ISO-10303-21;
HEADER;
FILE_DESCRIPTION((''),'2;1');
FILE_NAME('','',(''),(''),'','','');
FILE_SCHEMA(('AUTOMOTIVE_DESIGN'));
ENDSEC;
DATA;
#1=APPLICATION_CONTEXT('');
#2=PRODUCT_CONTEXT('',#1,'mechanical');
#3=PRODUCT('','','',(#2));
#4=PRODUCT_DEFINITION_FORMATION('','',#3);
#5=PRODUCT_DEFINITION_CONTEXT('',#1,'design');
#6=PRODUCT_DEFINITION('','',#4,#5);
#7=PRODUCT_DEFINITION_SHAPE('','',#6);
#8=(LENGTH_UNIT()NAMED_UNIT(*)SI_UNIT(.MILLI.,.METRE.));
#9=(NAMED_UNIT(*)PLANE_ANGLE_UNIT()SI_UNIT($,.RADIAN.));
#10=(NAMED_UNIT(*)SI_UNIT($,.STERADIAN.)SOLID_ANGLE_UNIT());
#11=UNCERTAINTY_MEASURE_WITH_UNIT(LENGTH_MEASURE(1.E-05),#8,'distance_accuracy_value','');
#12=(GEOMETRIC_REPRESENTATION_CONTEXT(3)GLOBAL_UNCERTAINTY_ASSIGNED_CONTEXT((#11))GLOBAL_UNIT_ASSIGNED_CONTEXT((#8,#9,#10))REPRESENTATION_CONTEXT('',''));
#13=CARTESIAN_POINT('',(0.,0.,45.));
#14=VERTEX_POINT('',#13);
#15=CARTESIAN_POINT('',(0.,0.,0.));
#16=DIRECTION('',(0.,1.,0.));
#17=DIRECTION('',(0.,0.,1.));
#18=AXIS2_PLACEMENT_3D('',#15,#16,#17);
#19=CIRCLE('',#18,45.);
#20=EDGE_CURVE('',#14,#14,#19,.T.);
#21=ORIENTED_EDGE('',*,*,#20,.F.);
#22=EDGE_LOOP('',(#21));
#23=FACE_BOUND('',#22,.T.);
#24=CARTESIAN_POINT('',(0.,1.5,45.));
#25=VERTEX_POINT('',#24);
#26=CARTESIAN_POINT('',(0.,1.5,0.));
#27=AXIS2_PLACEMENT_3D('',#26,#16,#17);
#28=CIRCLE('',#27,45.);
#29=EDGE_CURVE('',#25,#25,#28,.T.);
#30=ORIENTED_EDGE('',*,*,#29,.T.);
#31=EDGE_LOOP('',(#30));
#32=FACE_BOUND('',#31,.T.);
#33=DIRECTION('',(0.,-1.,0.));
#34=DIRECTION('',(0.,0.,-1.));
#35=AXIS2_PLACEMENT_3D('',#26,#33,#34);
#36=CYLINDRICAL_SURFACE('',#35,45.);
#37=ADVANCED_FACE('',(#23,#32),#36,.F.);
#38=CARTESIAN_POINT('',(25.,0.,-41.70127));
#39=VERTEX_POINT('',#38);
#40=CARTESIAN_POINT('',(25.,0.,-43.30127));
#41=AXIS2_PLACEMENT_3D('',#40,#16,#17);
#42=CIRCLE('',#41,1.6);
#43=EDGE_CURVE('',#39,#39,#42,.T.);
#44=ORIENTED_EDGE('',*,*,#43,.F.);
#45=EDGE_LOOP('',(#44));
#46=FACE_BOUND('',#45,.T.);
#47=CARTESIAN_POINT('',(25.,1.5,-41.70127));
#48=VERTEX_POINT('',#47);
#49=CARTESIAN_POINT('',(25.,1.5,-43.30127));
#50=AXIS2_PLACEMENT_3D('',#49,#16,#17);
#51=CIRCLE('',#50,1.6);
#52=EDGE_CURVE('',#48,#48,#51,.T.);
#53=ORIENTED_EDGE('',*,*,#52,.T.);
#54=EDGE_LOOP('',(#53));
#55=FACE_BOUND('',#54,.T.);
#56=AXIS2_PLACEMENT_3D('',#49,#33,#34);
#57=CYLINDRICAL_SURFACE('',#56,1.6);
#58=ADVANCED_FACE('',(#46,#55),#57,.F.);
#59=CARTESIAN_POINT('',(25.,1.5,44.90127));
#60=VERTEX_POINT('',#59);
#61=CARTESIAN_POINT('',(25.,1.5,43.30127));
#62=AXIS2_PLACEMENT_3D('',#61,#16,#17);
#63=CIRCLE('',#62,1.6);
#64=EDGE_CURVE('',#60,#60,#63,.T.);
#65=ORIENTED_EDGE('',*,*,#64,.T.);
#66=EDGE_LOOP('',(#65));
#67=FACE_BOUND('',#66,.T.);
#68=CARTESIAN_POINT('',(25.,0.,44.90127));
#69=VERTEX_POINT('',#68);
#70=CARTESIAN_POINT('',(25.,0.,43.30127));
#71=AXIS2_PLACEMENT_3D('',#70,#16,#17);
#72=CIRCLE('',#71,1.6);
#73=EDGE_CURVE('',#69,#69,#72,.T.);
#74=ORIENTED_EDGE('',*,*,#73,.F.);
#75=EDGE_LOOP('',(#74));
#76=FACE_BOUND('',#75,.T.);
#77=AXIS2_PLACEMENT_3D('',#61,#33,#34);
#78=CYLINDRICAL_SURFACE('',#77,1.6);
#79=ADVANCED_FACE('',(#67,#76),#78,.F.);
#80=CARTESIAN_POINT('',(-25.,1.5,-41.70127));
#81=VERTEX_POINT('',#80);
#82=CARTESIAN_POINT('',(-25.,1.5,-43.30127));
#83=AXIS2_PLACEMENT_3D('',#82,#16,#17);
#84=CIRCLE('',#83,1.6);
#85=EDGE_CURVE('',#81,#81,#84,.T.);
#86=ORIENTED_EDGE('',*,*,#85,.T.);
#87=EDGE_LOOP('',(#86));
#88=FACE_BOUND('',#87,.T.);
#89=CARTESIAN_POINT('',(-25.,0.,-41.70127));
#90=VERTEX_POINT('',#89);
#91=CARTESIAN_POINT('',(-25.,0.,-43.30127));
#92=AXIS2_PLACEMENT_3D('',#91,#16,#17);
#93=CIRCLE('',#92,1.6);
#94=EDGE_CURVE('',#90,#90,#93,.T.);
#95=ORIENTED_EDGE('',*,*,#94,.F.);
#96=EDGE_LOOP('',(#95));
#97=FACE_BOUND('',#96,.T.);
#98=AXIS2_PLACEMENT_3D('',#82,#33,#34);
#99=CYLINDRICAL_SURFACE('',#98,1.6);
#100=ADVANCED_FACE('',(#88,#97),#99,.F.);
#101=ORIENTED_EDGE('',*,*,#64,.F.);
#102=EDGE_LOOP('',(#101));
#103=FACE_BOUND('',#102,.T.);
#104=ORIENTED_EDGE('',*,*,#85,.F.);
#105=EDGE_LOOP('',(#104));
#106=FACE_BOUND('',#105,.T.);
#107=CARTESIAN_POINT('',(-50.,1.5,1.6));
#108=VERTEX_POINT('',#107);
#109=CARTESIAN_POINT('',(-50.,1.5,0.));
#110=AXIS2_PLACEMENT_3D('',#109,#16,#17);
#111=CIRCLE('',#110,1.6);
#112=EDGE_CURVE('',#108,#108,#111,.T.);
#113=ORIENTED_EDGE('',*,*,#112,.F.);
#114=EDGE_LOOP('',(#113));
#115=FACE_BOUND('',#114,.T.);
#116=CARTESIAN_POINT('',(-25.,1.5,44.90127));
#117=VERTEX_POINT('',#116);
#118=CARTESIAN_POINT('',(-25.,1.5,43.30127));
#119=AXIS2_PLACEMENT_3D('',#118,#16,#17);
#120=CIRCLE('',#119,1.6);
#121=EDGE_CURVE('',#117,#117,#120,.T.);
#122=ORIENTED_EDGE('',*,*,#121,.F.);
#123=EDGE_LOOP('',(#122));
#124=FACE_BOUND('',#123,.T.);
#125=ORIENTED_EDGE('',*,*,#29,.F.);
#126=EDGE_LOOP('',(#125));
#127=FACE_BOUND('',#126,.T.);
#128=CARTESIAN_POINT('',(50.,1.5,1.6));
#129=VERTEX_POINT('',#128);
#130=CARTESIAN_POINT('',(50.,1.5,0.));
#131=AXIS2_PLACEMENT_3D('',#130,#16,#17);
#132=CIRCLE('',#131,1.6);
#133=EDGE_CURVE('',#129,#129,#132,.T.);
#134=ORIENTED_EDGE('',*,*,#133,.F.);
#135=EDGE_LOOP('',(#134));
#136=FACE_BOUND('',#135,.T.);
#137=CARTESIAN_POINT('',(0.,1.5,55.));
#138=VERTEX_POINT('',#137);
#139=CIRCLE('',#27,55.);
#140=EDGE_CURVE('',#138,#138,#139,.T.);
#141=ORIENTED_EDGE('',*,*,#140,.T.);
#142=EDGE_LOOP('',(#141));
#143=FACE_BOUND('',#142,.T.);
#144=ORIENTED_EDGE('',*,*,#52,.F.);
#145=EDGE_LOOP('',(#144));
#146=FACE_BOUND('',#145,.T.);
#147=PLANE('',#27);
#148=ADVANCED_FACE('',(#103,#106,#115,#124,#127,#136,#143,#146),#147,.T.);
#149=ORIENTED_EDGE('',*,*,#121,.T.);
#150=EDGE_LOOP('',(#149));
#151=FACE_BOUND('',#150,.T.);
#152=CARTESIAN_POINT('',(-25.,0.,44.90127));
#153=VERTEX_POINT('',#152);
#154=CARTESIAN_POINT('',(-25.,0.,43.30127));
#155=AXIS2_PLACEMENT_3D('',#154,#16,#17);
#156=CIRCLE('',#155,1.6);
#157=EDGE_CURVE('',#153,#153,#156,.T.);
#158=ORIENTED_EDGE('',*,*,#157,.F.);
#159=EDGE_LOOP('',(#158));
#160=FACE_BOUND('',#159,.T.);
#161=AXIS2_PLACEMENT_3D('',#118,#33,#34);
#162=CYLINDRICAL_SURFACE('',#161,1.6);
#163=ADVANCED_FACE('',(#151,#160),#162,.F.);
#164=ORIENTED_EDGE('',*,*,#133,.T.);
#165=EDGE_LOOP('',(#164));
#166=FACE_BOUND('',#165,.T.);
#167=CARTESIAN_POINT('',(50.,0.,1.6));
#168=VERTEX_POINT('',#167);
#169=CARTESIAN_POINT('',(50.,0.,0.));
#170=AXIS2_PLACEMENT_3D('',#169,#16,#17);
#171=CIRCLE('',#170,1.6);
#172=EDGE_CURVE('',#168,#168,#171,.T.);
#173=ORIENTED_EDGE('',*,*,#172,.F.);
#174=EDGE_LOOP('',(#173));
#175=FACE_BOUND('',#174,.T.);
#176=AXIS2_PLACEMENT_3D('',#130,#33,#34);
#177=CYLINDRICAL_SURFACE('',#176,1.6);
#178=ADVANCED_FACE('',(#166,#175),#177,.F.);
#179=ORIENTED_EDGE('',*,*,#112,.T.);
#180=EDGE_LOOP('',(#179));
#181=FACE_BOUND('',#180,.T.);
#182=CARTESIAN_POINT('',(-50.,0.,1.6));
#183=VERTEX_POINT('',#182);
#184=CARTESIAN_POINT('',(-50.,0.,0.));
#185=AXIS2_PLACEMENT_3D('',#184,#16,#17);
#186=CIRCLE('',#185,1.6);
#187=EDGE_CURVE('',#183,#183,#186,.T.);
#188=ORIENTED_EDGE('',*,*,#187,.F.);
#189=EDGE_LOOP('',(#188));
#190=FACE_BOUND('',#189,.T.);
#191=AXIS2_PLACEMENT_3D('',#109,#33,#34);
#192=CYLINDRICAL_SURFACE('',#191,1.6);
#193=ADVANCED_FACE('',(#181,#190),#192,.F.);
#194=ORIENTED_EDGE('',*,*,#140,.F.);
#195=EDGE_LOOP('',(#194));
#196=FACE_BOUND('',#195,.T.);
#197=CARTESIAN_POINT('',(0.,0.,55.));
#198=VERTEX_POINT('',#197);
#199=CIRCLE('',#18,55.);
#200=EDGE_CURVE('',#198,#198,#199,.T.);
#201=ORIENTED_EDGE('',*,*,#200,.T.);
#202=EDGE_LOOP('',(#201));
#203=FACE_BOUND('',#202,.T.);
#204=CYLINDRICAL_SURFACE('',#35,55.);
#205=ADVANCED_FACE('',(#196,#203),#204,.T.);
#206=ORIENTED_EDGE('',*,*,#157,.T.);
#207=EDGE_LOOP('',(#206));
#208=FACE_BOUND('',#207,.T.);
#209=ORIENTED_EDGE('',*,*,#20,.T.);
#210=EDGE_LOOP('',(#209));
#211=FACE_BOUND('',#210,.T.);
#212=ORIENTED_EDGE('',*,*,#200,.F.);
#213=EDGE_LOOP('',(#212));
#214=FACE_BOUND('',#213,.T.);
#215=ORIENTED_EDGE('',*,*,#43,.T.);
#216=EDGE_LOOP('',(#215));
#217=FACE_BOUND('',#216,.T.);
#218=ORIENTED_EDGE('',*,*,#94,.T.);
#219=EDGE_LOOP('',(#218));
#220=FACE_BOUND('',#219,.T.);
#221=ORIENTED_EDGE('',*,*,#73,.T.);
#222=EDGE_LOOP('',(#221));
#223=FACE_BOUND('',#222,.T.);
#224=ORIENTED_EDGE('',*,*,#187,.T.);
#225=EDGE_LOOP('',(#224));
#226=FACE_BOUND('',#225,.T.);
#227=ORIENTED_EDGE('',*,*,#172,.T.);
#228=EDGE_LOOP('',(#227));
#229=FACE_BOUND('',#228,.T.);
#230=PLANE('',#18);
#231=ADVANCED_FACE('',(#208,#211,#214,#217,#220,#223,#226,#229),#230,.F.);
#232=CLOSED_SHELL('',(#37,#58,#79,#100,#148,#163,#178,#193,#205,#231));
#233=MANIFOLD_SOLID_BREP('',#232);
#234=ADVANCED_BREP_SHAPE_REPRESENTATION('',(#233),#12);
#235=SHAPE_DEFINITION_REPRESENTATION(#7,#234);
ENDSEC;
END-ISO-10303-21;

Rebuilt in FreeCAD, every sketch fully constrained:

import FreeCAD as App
import Part
import Sketcher

V = App.Vector
Q = App.Units.Quantity

doc = App.newDocument("Part")
body = doc.addObject("PartDesign::Body", "Body")

sketch1 = body.newObject("Sketcher::SketchObject", "Sketch")
sketch1.AttachmentSupport = (doc.getObject("XZ_Plane"), [""])
sketch1.MapMode = "FlatFace"
sketch1.addGeometry(Part.Circle(V(0, 0, 0), V(0, 0, 1), 55), False)
sketch1.addGeometry(Part.Circle(V(-25, -43.3, 0), V(0, 0, 1), 1.6), False)
sketch1.addGeometry(Part.Circle(V(-50, 0, 0), V(0, 0, 1), 1.6), False)
sketch1.addGeometry(Part.Circle(V(-25, 43.3, 0), V(0, 0, 1), 1.6), False)
sketch1.addGeometry(Part.Circle(V(25, -43.3, 0), V(0, 0, 1), 1.6), False)
sketch1.addGeometry(Part.Circle(V(50, 0, 0), V(0, 0, 1), 1.6), False)
sketch1.addGeometry(Part.Circle(V(0, 0, 0), V(0, 0, 1), 45), False)
sketch1.addGeometry(Part.Circle(V(25, 43.3, 0), V(0, 0, 1), 1.6), False)
sketch1.addConstraint(Sketcher.Constraint("Coincident", 0, 3, -1, 1))
sketch1.addConstraint(Sketcher.Constraint("Coincident", 6, 3, -1, 1))
sketch1.addConstraint(Sketcher.Constraint("Equal", 1, 2))
sketch1.addConstraint(Sketcher.Constraint("Equal", 2, 3))
sketch1.addConstraint(Sketcher.Constraint("Equal", 3, 4))
sketch1.addConstraint(Sketcher.Constraint("Equal", 4, 5))
sketch1.addConstraint(Sketcher.Constraint("Equal", 5, 7))
sketch1.addConstraint(Sketcher.Constraint("Symmetric", 3, 3, 4, 3, -1, 1))
sketch1.addConstraint(Sketcher.Constraint("Symmetric", 2, 3, 5, 3, -1, 1))
sketch1.addConstraint(Sketcher.Constraint("Symmetric", 1, 3, 7, 3, -1, 1))
sketch1.addConstraint(Sketcher.Constraint("Symmetric", 1, 3, 4, 3, -2))
sketch1.addConstraint(Sketcher.Constraint("PointOnObject", 2, 3, -1))
sketch1.addConstraint(Sketcher.Constraint("Diameter", 0, Q("110 mm")))
sketch1.addConstraint(Sketcher.Constraint("Diameter", 6, Q("90 mm")))
sketch1.addConstraint(Sketcher.Constraint("Diameter", 1, Q("3.2 mm")))
sketch1.addConstraint(Sketcher.Constraint("DistanceX", 1, 3, -1, 1, Q("25 mm")))
sketch1.addConstraint(Sketcher.Constraint("DistanceX", 2, 3, -1, 1, Q("50 mm")))
sketch1.addConstraint(Sketcher.Constraint("DistanceY", 1, 3, -1, 1, Q("43.30127 mm")))
pad1 = body.newObject("PartDesign::Pad", "Pad")
pad1.Profile = sketch1
pad1.Length = 1.5
pad1.Reversed = True

doc.recompute()
